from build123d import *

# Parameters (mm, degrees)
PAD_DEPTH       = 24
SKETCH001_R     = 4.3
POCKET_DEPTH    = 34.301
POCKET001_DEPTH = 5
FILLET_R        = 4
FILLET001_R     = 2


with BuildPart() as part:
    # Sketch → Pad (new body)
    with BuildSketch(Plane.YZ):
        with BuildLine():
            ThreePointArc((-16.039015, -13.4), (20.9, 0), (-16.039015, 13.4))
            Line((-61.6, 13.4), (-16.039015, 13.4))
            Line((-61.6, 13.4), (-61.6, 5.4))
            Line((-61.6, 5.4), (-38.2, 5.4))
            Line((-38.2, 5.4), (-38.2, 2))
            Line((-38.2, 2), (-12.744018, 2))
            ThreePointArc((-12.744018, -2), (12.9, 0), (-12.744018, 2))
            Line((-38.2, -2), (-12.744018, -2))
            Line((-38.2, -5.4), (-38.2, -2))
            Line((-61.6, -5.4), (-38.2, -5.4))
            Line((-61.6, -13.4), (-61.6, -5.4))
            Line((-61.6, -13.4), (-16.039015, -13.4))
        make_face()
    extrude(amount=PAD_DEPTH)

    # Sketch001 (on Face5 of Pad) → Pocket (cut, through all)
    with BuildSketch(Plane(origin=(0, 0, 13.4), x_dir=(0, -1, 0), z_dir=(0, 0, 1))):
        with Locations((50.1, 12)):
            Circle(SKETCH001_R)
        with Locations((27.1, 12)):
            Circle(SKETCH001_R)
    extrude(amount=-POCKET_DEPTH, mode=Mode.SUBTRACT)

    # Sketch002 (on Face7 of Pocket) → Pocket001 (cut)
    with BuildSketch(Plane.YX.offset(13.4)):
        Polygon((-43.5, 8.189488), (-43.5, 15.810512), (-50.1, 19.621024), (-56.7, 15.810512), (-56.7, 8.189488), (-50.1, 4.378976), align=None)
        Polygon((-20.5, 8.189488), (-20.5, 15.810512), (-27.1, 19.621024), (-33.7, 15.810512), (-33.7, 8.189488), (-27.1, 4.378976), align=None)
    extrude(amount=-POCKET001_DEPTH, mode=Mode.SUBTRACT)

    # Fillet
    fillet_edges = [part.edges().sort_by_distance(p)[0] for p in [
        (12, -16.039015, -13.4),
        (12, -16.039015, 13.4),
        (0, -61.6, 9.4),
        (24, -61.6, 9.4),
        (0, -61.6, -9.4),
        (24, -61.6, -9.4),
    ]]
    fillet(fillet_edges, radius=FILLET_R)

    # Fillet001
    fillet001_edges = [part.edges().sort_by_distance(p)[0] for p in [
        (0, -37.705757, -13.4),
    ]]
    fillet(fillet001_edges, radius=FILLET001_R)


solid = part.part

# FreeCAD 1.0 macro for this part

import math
import FreeCAD as App
import Part
import Sketcher
Q = App.Units.Quantity


def edges_at(feature, points):
    """Names of the edges that pass closest to the given points."""
    edges = feature.Shape.Edges
    near = lambda p: min(range(len(edges)), key=lambda i: edges[i].distToShape(Part.Vertex(*p))[0])
    return sorted({f"Edge{near(p) + 1}" for p in points})


def add_polygon(sketch, points):
    """Adds a closed chain of lines whose ends are joined by coincident constraints."""
    first, n = sketch.GeometryCount, len(points)
    for a, b in zip(points, points[1:] + points[:1]):
        sketch.addGeometry(Part.LineSegment(App.Vector(*a, 0), App.Vector(*b, 0)), False)
    for i in range(n):
        sketch.addConstraint(Sketcher.Constraint("Coincident", first + i, 2, first + (i + 1) % n, 1))

doc = App.newDocument("Part")
params = doc.addObject("Spreadsheet::Sheet", "Params")
for row, (alias, value) in enumerate([
    ("sketch1_radius", "20.9 mm"),
    ("sketch1_radius2", "12.9 mm"),
    ("sketch1_height", "8 mm"),
    ("sketch1_width", "23.4 mm"),
    ("sketch1_height2", "3.4 mm"),
    ("pad1_length", "24 mm"),
    ("sketch2_diameter", "8.6 mm"),
    ("pocket2_length", "5 mm"),
    ("fillet_radius", "4 mm"),
    ("fillet2_radius", "2 mm"),
], start=1):
    params.set(f"A{row}", alias)
    params.set(f"B{row}", "=" + value)
    params.setAlias(f"B{row}", alias)

body = doc.addObject("PartDesign::Body", "Body")

sketch1 = body.newObject("Sketcher::SketchObject", "Sketch")
sketch1.AttachmentSupport = (doc.getObject("YZ_Plane"), [""])
sketch1.MapMode = "FlatFace"
sketch1.addGeometry(Part.ArcOfCircle(Part.Circle(App.Vector(0, 0, 0), App.Vector(0, 0, 1), 20.9), math.radians(-140), math.radians(140)), False)
sketch1.addGeometry(Part.LineSegment(App.Vector(-16, 13.4, 0), App.Vector(-61.6, 13.4, 0)), False)
sketch1.addGeometry(Part.LineSegment(App.Vector(-61.6, 13.4, 0), App.Vector(-61.6, 5.4, 0)), False)
sketch1.addGeometry(Part.LineSegment(App.Vector(-61.6, 5.4, 0), App.Vector(-38.2, 5.4, 0)), False)
sketch1.addGeometry(Part.LineSegment(App.Vector(-38.2, 5.4, 0), App.Vector(-38.2, 2, 0)), False)
sketch1.addGeometry(Part.LineSegment(App.Vector(-38.2, 2, 0), App.Vector(-12.7, 2, 0)), False)
sketch1.addGeometry(Part.ArcOfCircle(Part.Circle(App.Vector(0, 0, 0), App.Vector(0, 0, 1), 12.9), math.radians(-171), math.radians(171)), False)
sketch1.addGeometry(Part.LineSegment(App.Vector(-12.7, -2, 0), App.Vector(-38.2, -2, 0)), False)
sketch1.addGeometry(Part.LineSegment(App.Vector(-38.2, -2, 0), App.Vector(-38.2, -5.4, 0)), False)
sketch1.addGeometry(Part.LineSegment(App.Vector(-38.2, -5.4, 0), App.Vector(-61.6, -5.4, 0)), False)
sketch1.addGeometry(Part.LineSegment(App.Vector(-61.6, -5.4, 0), App.Vector(-61.6, -13.4, 0)), False)
sketch1.addGeometry(Part.LineSegment(App.Vector(-61.6, -13.4, 0), App.Vector(-16, -13.4, 0)), False)
sketch1.addConstraint(Sketcher.Constraint("Coincident", 0, 2, 1, 1))
sketch1.addConstraint(Sketcher.Constraint("Coincident", 1, 2, 2, 1))
sketch1.addConstraint(Sketcher.Constraint("Coincident", 2, 2, 3, 1))
sketch1.addConstraint(Sketcher.Constraint("Coincident", 3, 2, 4, 1))
sketch1.addConstraint(Sketcher.Constraint("Coincident", 4, 2, 5, 1))
sketch1.addConstraint(Sketcher.Constraint("Coincident", 5, 2, 6, 2))
sketch1.addConstraint(Sketcher.Constraint("Coincident", 6, 1, 7, 1))
sketch1.addConstraint(Sketcher.Constraint("Coincident", 7, 2, 8, 1))
sketch1.addConstraint(Sketcher.Constraint("Coincident", 8, 2, 9, 1))
sketch1.addConstraint(Sketcher.Constraint("Coincident", 9, 2, 10, 1))
sketch1.addConstraint(Sketcher.Constraint("Coincident", 10, 2, 11, 1))
sketch1.addConstraint(Sketcher.Constraint("Coincident", 11, 2, 0, 1))
sketch1.addConstraint(Sketcher.Constraint("Horizontal", 1))
sketch1.addConstraint(Sketcher.Constraint("Vertical", 2))
sketch1.addConstraint(Sketcher.Constraint("Horizontal", 3))
sketch1.addConstraint(Sketcher.Constraint("Vertical", 4))
sketch1.addConstraint(Sketcher.Constraint("Horizontal", 5))
sketch1.addConstraint(Sketcher.Constraint("Horizontal", 7))
sketch1.addConstraint(Sketcher.Constraint("Vertical", 8))
sketch1.addConstraint(Sketcher.Constraint("Horizontal", 9))
sketch1.addConstraint(Sketcher.Constraint("Vertical", 10))
sketch1.addConstraint(Sketcher.Constraint("Horizontal", 11))
sketch1.addConstraint(Sketcher.Constraint("Coincident", 0, 3, -1, 1))
sketch1.addConstraint(Sketcher.Constraint("Coincident", 6, 3, -1, 1))
sketch1.addConstraint(Sketcher.Constraint("Symmetric", 4, 2, 7, 2, -1))
sketch1.addConstraint(Sketcher.Constraint("Symmetric", 2, 2, 9, 2, -1))
sketch1.addConstraint(Sketcher.Constraint("Vertical", 0, 2, 11, 2))
sketch1.addConstraint(Sketcher.Constraint("Radius", 0, Q("20.9 mm")))
sketch1.addConstraint(Sketcher.Constraint("Radius", 6, Q("12.9 mm")))
sketch1.addConstraint(Sketcher.Constraint("DistanceY", 2, 2, 2, 1, Q("8 mm")))
sketch1.addConstraint(Sketcher.Constraint("DistanceX", 3, 1, 3, 2, Q("23.4 mm")))
sketch1.addConstraint(Sketcher.Constraint("DistanceY", 4, 2, 4, 1, Q("3.4 mm")))
sketch1.addConstraint(Sketcher.Constraint("DistanceY", -1, 1, 4, 2, Q("2 mm")))
sketch1.addConstraint(Sketcher.Constraint("DistanceX", 1, 2, -1, 1, Q("61.6 mm")))
sketch1.setExpression("Constraints[27]", "Params.sketch1_radius")
sketch1.setExpression("Constraints[28]", "Params.sketch1_radius2")
sketch1.setExpression("Constraints[29]", "Params.sketch1_height")
sketch1.setExpression("Constraints[30]", "Params.sketch1_width")
sketch1.setExpression("Constraints[31]", "Params.sketch1_height2")
pad1 = body.newObject("PartDesign::Pad", "Pad")
pad1.Profile = sketch1
pad1.setExpression("Length", "Params.pad1_length")

sketch2 = body.newObject("Sketcher::SketchObject", "Sketch001")
sketch2.AttachmentSupport = (doc.getObject("XY_Plane"), [""])
sketch2.MapMode = "FlatFace"
sketch2.AttachmentOffset = App.Placement(App.Vector(0, 0, 13.4), App.Rotation())
sketch2.addGeometry(Part.Circle(App.Vector(12, -50.1, 0), App.Vector(0, 0, 1), 4.3), False)
sketch2.addGeometry(Part.Circle(App.Vector(12, -27.1, 0), App.Vector(0, 0, 1), 4.3), False)
sketch2.addConstraint(Sketcher.Constraint("Equal", 0, 1))
sketch2.addConstraint(Sketcher.Constraint("Vertical", 0, 3, 1, 3))
sketch2.addConstraint(Sketcher.Constraint("Diameter", 0, Q("8.6 mm")))
sketch2.addConstraint(Sketcher.Constraint("DistanceX", -1, 1, 0, 3, Q("12 mm")))
sketch2.addConstraint(Sketcher.Constraint("DistanceY", 0, 3, 1, 3, Q("23 mm")))
sketch2.addConstraint(Sketcher.Constraint("DistanceY", 0, 3, -1, 1, Q("50.1 mm")))
sketch2.setExpression("Constraints[2]", "Params.sketch2_diameter")
pocket1 = body.newObject("PartDesign::Pocket", "Pocket")
pocket1.Profile = sketch2
pocket1.Type = "ThroughAll"

sketch3 = body.newObject("Sketcher::SketchObject", "Sketch002")
sketch3.AttachmentSupport = (doc.getObject("XY_Plane"), [""])
sketch3.MapMode = "FlatFace"
sketch3.AttachmentOffset = App.Placement(App.Vector(0, 0, -13.4), App.Rotation())
add_polygon(sketch3, [(8, -44), (16, -44), (20, -50), (16, -57), (8, -57), (4, -50)])
add_polygon(sketch3, [(8, -20), (16, -20), (20, -27), (16, -34), (8, -34), (4, -27)])
sketch3.addConstraint(Sketcher.Constraint("Horizontal", 0))
sketch3.addConstraint(Sketcher.Constraint("Horizontal", 3))
sketch3.addConstraint(Sketcher.Constraint("Horizontal", 6))
sketch3.addConstraint(Sketcher.Constraint("Horizontal", 9))
sketch3.addConstraint(Sketcher.Constraint("Parallel", 1, 4))
sketch3.addConstraint(Sketcher.Constraint("Parallel", 2, 5))
sketch3.addConstraint(Sketcher.Constraint("Parallel", 4, 7))
sketch3.addConstraint(Sketcher.Constraint("Parallel", 5, 8))
sketch3.addConstraint(Sketcher.Constraint("Parallel", 7, 10))
sketch3.addConstraint(Sketcher.Constraint("Parallel", 8, 11))
sketch3.addConstraint(Sketcher.Constraint("Horizontal", 1, 2, 4, 2))
sketch3.addConstraint(Sketcher.Constraint("Horizontal", 7, 2, 10, 2))
sketch3.addConstraint(Sketcher.Constraint("Vertical", 0, 2, 2, 2))
sketch3.addConstraint(Sketcher.Constraint("Vertical", 3, 2, 5, 2))
sketch3.addConstraint(Sketcher.Constraint("Vertical", 2, 2, 6, 2))
sketch3.addConstraint(Sketcher.Constraint("Vertical", 1, 2, 7, 2))
sketch3.addConstraint(Sketcher.Constraint("Vertical", 6, 2, 8, 2))
sketch3.addConstraint(Sketcher.Constraint("Vertical", 5, 2, 9, 2))
sketch3.addConstraint(Sketcher.Constraint("Angle", 1, Q("-59.999999 deg")))
sketch3.addConstraint(Sketcher.Constraint("DistanceY", 0, 2, 6, 2, Q("23 mm")))
sketch3.addConstraint(Sketcher.Constraint("DistanceY", 0, 2, -1, 1, Q("43.5 mm")))
sketch3.addConstraint(Sketcher.Constraint("DistanceY", 1, 2, -1, 1, Q("50.1 mm")))
sketch3.addConstraint(Sketcher.Constraint("DistanceX", 0, 1, 0, 2, Q("7.621024 mm")))
sketch3.addConstraint(Sketcher.Constraint("DistanceX", -1, 1, 0, 2, Q("15.810512 mm")))
pocket2 = body.newObject("PartDesign::Pocket", "Pocket001")
pocket2.Profile = sketch3
pocket2.setExpression("Length", "Params.pocket2_length")
pocket2.Reversed = True
doc.recompute()

fillet = body.newObject("PartDesign::Fillet", "Fillet")
fillet.Base = (pocket2, edges_at(pocket2, [
    (12, -16.039, -13.4),
    (12, -16.039, 13.4),
    (0, -61.6, 9.4),
    (24, -61.6, 9.4),
    (0, -61.6, -9.4),
    (24, -61.6, -9.4),
]))
fillet.setExpression("Radius", "Params.fillet_radius")
doc.recompute()

fillet2 = body.newObject("PartDesign::Fillet", "Fillet001")
fillet2.Base = (fillet, edges_at(fillet, [(0, -37.706, -13.4)]))
fillet2.setExpression("Radius", "Params.fillet2_radius")

doc.recompute()
